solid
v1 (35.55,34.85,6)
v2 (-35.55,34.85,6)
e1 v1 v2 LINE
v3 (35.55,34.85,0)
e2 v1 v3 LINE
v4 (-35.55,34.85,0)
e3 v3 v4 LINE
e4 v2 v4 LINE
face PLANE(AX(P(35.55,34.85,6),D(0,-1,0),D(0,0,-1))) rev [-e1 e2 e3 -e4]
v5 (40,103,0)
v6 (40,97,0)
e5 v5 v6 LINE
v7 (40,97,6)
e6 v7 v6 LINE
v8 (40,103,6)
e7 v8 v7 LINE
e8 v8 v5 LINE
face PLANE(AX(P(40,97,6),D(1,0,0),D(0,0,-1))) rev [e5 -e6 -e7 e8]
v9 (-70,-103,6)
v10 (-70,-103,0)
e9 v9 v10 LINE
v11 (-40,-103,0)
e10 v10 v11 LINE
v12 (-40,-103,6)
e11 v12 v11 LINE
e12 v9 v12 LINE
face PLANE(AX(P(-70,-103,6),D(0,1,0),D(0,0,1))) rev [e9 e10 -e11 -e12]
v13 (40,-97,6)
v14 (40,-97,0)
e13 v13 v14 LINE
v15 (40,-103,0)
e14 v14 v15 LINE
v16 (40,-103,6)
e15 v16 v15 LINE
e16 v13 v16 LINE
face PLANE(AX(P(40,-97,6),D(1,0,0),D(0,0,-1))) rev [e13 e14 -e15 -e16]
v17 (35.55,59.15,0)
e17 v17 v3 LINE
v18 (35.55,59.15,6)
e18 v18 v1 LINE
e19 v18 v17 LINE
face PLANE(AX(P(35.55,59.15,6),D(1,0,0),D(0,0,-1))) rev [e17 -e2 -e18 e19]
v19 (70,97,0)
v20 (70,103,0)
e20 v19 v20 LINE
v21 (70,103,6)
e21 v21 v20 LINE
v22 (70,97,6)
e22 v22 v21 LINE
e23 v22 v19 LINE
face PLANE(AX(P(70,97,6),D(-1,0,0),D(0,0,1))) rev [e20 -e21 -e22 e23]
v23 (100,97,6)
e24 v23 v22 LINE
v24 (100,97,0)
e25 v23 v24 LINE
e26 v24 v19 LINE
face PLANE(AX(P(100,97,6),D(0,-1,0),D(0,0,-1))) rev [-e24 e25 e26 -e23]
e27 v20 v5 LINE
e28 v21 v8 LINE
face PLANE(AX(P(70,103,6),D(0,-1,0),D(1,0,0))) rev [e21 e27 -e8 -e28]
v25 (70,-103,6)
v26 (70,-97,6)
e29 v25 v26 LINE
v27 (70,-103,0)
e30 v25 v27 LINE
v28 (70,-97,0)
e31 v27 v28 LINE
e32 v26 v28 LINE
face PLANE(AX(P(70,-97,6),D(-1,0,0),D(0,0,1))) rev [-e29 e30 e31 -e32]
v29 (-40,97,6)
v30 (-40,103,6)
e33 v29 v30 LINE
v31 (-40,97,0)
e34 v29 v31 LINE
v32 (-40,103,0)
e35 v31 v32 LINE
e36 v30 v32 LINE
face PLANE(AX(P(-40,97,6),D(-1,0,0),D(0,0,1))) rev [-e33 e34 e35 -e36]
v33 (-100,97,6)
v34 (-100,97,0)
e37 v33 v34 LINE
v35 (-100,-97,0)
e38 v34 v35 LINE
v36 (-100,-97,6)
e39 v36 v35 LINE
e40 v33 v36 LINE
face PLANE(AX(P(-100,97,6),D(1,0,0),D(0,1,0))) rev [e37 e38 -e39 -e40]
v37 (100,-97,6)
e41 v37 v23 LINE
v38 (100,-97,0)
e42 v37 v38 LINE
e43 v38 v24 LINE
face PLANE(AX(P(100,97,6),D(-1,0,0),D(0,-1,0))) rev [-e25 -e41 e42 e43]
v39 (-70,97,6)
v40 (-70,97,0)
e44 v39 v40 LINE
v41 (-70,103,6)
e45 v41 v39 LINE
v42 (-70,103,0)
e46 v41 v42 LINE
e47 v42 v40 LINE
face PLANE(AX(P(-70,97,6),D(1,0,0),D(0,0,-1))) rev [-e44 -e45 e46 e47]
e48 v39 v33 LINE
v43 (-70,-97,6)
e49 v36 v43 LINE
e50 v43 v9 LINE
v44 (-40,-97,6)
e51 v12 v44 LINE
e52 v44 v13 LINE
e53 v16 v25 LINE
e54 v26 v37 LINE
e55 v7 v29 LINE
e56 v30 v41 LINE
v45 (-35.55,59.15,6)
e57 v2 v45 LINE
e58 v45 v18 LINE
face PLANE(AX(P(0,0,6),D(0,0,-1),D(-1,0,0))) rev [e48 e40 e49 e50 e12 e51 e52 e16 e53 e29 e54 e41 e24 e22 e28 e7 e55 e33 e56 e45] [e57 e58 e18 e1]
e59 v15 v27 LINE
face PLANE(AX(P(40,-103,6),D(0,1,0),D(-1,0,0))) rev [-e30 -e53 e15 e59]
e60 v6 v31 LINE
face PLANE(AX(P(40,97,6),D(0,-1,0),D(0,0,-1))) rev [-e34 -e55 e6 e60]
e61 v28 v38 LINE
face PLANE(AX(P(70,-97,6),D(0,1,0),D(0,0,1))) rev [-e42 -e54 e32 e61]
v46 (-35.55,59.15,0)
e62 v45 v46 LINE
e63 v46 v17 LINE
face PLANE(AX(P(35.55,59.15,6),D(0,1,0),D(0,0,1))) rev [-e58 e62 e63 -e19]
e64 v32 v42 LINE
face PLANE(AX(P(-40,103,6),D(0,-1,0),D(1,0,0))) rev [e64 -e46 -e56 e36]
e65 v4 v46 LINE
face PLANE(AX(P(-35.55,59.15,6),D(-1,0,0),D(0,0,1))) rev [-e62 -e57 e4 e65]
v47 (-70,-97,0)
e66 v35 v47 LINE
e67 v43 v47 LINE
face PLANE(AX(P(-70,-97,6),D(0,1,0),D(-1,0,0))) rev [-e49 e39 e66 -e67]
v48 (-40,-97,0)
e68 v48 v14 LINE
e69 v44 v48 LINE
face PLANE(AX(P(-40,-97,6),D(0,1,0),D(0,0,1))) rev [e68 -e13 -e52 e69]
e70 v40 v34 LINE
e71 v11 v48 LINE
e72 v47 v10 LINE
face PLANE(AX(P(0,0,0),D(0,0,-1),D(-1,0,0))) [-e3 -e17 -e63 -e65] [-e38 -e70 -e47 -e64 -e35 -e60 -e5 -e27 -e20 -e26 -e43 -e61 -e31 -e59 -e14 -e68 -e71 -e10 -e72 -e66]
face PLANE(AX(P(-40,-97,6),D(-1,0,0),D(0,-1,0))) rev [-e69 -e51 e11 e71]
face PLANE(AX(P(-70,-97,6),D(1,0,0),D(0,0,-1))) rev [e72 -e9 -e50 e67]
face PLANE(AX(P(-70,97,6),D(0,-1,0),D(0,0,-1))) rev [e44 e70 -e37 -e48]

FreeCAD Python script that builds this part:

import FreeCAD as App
import Part
import Sketcher
Q = App.Units.Quantity

doc = App.newDocument("Part")
body = doc.addObject("PartDesign::Body", "Body")

# Sketch on XY plane
sketch1 = body.newObject("Sketcher::SketchObject", "Sketch")
sketch1.AttachmentSupport = (doc.getObject("XY_Plane"), [""])
sketch1.MapMode = "FlatFace"
sketch1.addGeometry([
    Part.LineSegment(App.Vector(-100, -97, 0), App.Vector(-70, -97, 0)),  # 0
    Part.LineSegment(App.Vector(-70, -97, 0), App.Vector(-70, -103, 0)),  # 1
    Part.LineSegment(App.Vector(-70, -103, 0), App.Vector(-40, -103, 0)),  # 2
    Part.LineSegment(App.Vector(-40, -103, 0), App.Vector(-40, -97, 0)),  # 3
    Part.LineSegment(App.Vector(-40, -97, 0), App.Vector(40, -97, 0)),  # 4
    Part.LineSegment(App.Vector(40, -97, 0), App.Vector(40, -103, 0)),  # 5
    Part.LineSegment(App.Vector(40, -103, 0), App.Vector(70, -103, 0)),  # 6
    Part.LineSegment(App.Vector(70, -103, 0), App.Vector(70, -97, 0)),  # 7
    Part.LineSegment(App.Vector(70, -97, 0), App.Vector(100, -97, 0)),  # 8
    Part.LineSegment(App.Vector(100, -97, 0), App.Vector(100, 97, 0)),  # 9
    Part.LineSegment(App.Vector(100, 97, 0), App.Vector(70, 97, 0)),  # 10
    Part.LineSegment(App.Vector(70, 97, 0), App.Vector(70, 103, 0)),  # 11
    Part.LineSegment(App.Vector(70, 103, 0), App.Vector(40, 103, 0)),  # 12
    Part.LineSegment(App.Vector(40, 103, 0), App.Vector(40, 97, 0)),  # 13
    Part.LineSegment(App.Vector(40, 97, 0), App.Vector(-40, 97, 0)),  # 14
    Part.LineSegment(App.Vector(-40, 97, 0), App.Vector(-40, 103, 0)),  # 15
    Part.LineSegment(App.Vector(-40, 103, 0), App.Vector(-70, 103, 0)),  # 16
    Part.LineSegment(App.Vector(-70, 103, 0), App.Vector(-70, 97, 0)),  # 17
    Part.LineSegment(App.Vector(-70, 97, 0), App.Vector(-100, 97, 0)),  # 18
    Part.LineSegment(App.Vector(-100, 97, 0), App.Vector(-100, -97, 0)),  # 19
], False)
sketch1.addConstraint([
    Sketcher.Constraint("Coincident", 0, 2, 1, 1),
    Sketcher.Constraint("Coincident", 1, 2, 2, 1),
    Sketcher.Constraint("Coincident", 2, 2, 3, 1),
    Sketcher.Constraint("Coincident", 3, 2, 4, 1),
    Sketcher.Constraint("Coincident", 4, 2, 5, 1),
    Sketcher.Constraint("Coincident", 5, 2, 6, 1),
    Sketcher.Constraint("Coincident", 6, 2, 7, 1),
    Sketcher.Constraint("Coincident", 7, 2, 8, 1),
    Sketcher.Constraint("Coincident", 8, 2, 9, 1),
    Sketcher.Constraint("Coincident", 9, 2, 10, 1),
    Sketcher.Constraint("Coincident", 10, 2, 11, 1),
    Sketcher.Constraint("Coincident", 11, 2, 12, 1),
    Sketcher.Constraint("Coincident", 12, 2, 13, 1),
    Sketcher.Constraint("Coincident", 13, 2, 14, 1),
    Sketcher.Constraint("Coincident", 14, 2, 15, 1),
    Sketcher.Constraint("Coincident", 15, 2, 16, 1),
    Sketcher.Constraint("Coincident", 16, 2, 17, 1),
    Sketcher.Constraint("Coincident", 17, 2, 18, 1),
    Sketcher.Constraint("Coincident", 18, 2, 19, 1),
    Sketcher.Constraint("Coincident", 19, 2, 0, 1),
    Sketcher.Constraint("Horizontal", 0),
    Sketcher.Constraint("Vertical", 1),
    Sketcher.Constraint("Horizontal", 2),
    Sketcher.Constraint("Vertical", 3),
    Sketcher.Constraint("Horizontal", 4),
    Sketcher.Constraint("Vertical", 5),
    Sketcher.Constraint("Horizontal", 6),
    Sketcher.Constraint("Vertical", 7),
    Sketcher.Constraint("Horizontal", 8),
    Sketcher.Constraint("Vertical", 9),
    Sketcher.Constraint("Horizontal", 10),
    Sketcher.Constraint("Vertical", 11),
    Sketcher.Constraint("Horizontal", 12),
    Sketcher.Constraint("Vertical", 13),
    Sketcher.Constraint("Horizontal", 14),
    Sketcher.Constraint("Vertical", 15),
    Sketcher.Constraint("Horizontal", 16),
    Sketcher.Constraint("Vertical", 17),
    Sketcher.Constraint("Horizontal", 18),
    Sketcher.Constraint("Vertical", 19),
    Sketcher.Constraint("Symmetric", 0, 2, 10, 2, -1, 1),
    Sketcher.Constraint("Symmetric", 2, 2, 12, 2, -1, 1),
    Sketcher.Constraint("Symmetric", 4, 2, 14, 2, -1, 1),
    Sketcher.Constraint("Symmetric", 6, 2, 16, 2, -1, 1),
    Sketcher.Constraint("Symmetric", 8, 2, 18, 2, -1, 1),
    Sketcher.Constraint("Symmetric", 2, 2, 5, 2, -2),
    Sketcher.Constraint("Symmetric", 0, 2, 7, 2, -2),
    Sketcher.Constraint("Horizontal", 0, 2, 3, 2),
    Sketcher.Constraint("Equal", 0, 2),
    Sketcher.Constraint("DistanceX", 0, 1, 0, 2, Q("30 mm")),
    Sketcher.Constraint("DistanceX", 4, 1, 4, 2, Q("80 mm")),
    Sketcher.Constraint("DistanceY", 1, 2, 1, 1, Q("6 mm")),
    Sketcher.Constraint("DistanceY", 9, 1, 9, 2, Q("194 mm")),
])
pad1 = body.newObject("PartDesign::Pad", "Pad")
pad1.Profile = sketch1
pad1.Length = 6

# Sketch on XY plane
sketch2 = body.newObject("Sketcher::SketchObject", "Sketch001")
sketch2.AttachmentSupport = (doc.getObject("XY_Plane"), [""])
sketch2.MapMode = "FlatFace"
sketch2.addGeometry([
    Part.LineSegment(App.Vector(35.55, 59.15, 0), App.Vector(35.55, 34.85, 0)),
    Part.LineSegment(App.Vector(35.55, 34.85, 0), App.Vector(-35.55, 34.85, 0)),
    Part.LineSegment(App.Vector(-35.55, 34.85, 0), App.Vector(-35.55, 59.15, 0)),
    Part.LineSegment(App.Vector(-35.55, 59.15, 0), App.Vector(35.55, 59.15, 0)),
], False)
sketch2.addConstraint([
    Sketcher.Constraint("Coincident", 0, 2, 1, 1),
    Sketcher.Constraint("Coincident", 1, 2, 2, 1),
    Sketcher.Constraint("Coincident", 2, 2, 3, 1),
    Sketcher.Constraint("Coincident", 3, 2, 0, 1),
    Sketcher.Constraint("Vertical", 0),
    Sketcher.Constraint("Horizontal", 1),
    Sketcher.Constraint("Vertical", 2),
    Sketcher.Constraint("Horizontal", 3),
    Sketcher.Constraint("DistanceX", 1, 2, 1, 1, Q("71.1 mm")),
    Sketcher.Constraint("DistanceY", 0, 2, 0, 1, Q("24.3 mm")),
    Sketcher.Constraint("DistanceX", -1, 1, 0, 2, Q("35.55 mm")),
    Sketcher.Constraint("DistanceY", -1, 1, 0, 2, Q("34.85 mm")),
])
pocket1 = body.newObject("PartDesign::Pocket", "Pocket")
pocket1.Profile = sketch2
pocket1.Length = 6
pocket1.Reversed = True

doc.recompute()
